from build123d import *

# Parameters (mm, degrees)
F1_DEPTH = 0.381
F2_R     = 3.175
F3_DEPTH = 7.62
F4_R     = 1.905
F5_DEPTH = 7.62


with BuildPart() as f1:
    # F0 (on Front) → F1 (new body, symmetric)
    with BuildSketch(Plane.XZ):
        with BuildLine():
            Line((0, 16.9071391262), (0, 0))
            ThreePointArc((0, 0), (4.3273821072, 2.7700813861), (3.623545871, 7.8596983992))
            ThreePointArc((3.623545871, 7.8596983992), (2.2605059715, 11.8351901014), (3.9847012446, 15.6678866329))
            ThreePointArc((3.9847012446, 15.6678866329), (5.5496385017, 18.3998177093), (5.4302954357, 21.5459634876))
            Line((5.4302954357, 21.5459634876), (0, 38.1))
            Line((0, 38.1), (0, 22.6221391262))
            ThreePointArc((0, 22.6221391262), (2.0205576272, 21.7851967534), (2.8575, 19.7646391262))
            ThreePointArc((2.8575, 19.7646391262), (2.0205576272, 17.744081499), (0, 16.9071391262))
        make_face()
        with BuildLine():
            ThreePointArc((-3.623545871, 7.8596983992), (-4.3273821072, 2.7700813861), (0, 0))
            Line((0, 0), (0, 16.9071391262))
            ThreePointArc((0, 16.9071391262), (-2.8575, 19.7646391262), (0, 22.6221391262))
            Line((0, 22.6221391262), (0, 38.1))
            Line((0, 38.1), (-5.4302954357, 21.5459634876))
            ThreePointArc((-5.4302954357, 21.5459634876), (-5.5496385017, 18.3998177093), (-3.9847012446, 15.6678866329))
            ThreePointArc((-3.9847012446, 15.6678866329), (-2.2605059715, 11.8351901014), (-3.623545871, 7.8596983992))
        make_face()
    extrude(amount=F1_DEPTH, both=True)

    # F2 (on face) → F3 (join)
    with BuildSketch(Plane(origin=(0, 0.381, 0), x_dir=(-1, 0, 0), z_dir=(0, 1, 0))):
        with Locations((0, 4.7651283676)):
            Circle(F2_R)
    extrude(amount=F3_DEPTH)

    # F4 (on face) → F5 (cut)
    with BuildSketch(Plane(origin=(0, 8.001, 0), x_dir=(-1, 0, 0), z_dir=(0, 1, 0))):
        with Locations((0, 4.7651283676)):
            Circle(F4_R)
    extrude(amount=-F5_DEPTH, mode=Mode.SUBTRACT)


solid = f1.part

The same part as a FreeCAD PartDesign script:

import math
import FreeCAD as App
import Part
import Sketcher
Q = App.Units.Quantity

doc = App.newDocument("Part")
body = doc.addObject("PartDesign::Body", "Body")

# Sketch on XZ plane
sketch1 = body.newObject("Sketcher::SketchObject", "Sketch")
sketch1.AttachmentSupport = (doc.getObject("XZ_Plane"), [""])
sketch1.MapMode = "FlatFace"
sketch1.addGeometry(Part.ArcOfCircle(Part.Circle(App.Vector(0, 4.8, 0), App.Vector(0, 0, 1), 4.8), math.radians(-90), math.radians(40)), False)
sketch1.addGeometry(Part.ArcOfCircle(Part.Circle(App.Vector(8, 11.6, 0), App.Vector(0, 0, 1), 5.7), math.radians(134), math.radians(220)), False)
sketch1.addGeometry(Part.ArcOfCircle(Part.Circle(App.Vector(0, 19.8, 0), App.Vector(0, 0, 1), 5.7), math.radians(-46), math.radians(18)), False)
sketch1.addGeometry(Part.LineSegment(App.Vector(5.4, 21.5, 0), App.Vector(0, 38.1, 0)), False)
sketch1.addGeometry(Part.LineSegment(App.Vector(0, 38.1, 0), App.Vector(-5.4, 21.5, 0)), False)
sketch1.addGeometry(Part.ArcOfCircle(Part.Circle(App.Vector(0, 19.8, 0), App.Vector(0, 0, 1), 5.7), math.radians(162), math.radians(226)), False)
sketch1.addGeometry(Part.ArcOfCircle(Part.Circle(App.Vector(-8, 11.6, 0), App.Vector(0, 0, 1), 5.7), math.radians(-40), math.radians(46)), False)
sketch1.addGeometry(Part.ArcOfCircle(Part.Circle(App.Vector(0, 4.8, 0), App.Vector(0, 0, 1), 4.8), math.radians(140), math.radians(270)), False)
sketch1.addGeometry(Part.ArcOfCircle(Part.Circle(App.Vector(0, 19.8, 0), App.Vector(0, 0, 1), 2.9), math.radians(0), math.radians(90)), False)
sketch1.addGeometry(Part.ArcOfCircle(Part.Circle(App.Vector(0, 19.8, 0), App.Vector(0, 0, 1), 2.9), math.radians(-90), math.radians(0)), False)
sketch1.addGeometry(Part.ArcOfCircle(Part.Circle(App.Vector(0, 19.8, 0), App.Vector(0, 0, 1), 2.9), math.radians(90), math.radians(270)), False)
sketch1.addConstraint(Sketcher.Constraint("Tangent", 0, 2, 1, 2))
sketch1.addConstraint(Sketcher.Constraint("Tangent", 1, 1, 2, 1))
sketch1.addConstraint(Sketcher.Constraint("Tangent", 2, 2, 3, 1))
sketch1.addConstraint(Sketcher.Constraint("Coincident", 3, 2, 4, 1))
sketch1.addConstraint(Sketcher.Constraint("Tangent", 4, 2, 5, 1))
sketch1.addConstraint(Sketcher.Constraint("Tangent", 5, 2, 6, 2))
sketch1.addConstraint(Sketcher.Constraint("Tangent", 6, 1, 7, 1))
sketch1.addConstraint(Sketcher.Constraint("Tangent", 7, 2, 0, 1))
sketch1.addConstraint(Sketcher.Constraint("Tangent", 8, 1, 9, 2))
sketch1.addConstraint(Sketcher.Constraint("Tangent", 9, 1, 10, 2))
sketch1.addConstraint(Sketcher.Constraint("Tangent", 10, 1, 8, 2))
sketch1.addConstraint(Sketcher.Constraint("Coincident", 7, 2, -1, 1))
sketch1.addConstraint(Sketcher.Constraint("Coincident", 5, 3, 2, 3))
sketch1.addConstraint(Sketcher.Constraint("Coincident", 8, 3, 2, 3))
sketch1.addConstraint(Sketcher.Constraint("Equal", 1, 2))
sketch1.addConstraint(Sketcher.Constraint("Equal", 2, 5))
sketch1.addConstraint(Sketcher.Constraint("Equal", 5, 6))
sketch1.addConstraint(Sketcher.Constraint("Equal", 0, 7))
sketch1.addConstraint(Sketcher.Constraint("Symmetric", 1, 3, 6, 3, -2))
sketch1.addConstraint(Sketcher.Constraint("PointOnObject", 3, 2, -2))
sketch1.addConstraint(Sketcher.Constraint("PointOnObject", 9, 1, -2))
sketch1.addConstraint(Sketcher.Constraint("PointOnObject", 10, 1, -2))
sketch1.addConstraint(Sketcher.Constraint("Horizontal", 10, 3, 8, 1))
sketch1.addConstraint(Sketcher.Constraint("Radius", 1, Q("0.225 in")))
sketch1.addConstraint(Sketcher.Constraint("DistanceY", -1, 1, 3, 2, Q("1.5 in")))
sketch1.addConstraint(Sketcher.Constraint("Radius", 8, Q("0.1125 in")))
sketch1.addConstraint(Sketcher.Constraint("Radius", 0, Q("4.765128 mm")))
sketch1.addConstraint(Sketcher.Constraint("DistanceY", -1, 1, 0, 2, Q("7.859698 mm")))
pad1 = body.newObject("PartDesign::Pad", "Pad")
pad1.Profile = sketch1
pad1.Length = Q("0.03 in")
pad1.Midplane = True

# Sketch on XZ plane
sketch2 = body.newObject("Sketcher::SketchObject", "Sketch001")
sketch2.AttachmentSupport = (doc.getObject("XZ_Plane"), [""])
sketch2.MapMode = "FlatFace"
sketch2.AttachmentOffset = App.Placement(App.Vector(0, 0, -0.015 * 25.4), App.Rotation())
sketch2.addGeometry(Part.Circle(App.Vector(0, 4.8, 0), App.Vector(0, 0, 1), 3.2), False)
sketch2.addConstraint(Sketcher.Constraint("PointOnObject", 0, 3, -2))
sketch2.addConstraint(Sketcher.Constraint("Diameter", 0, Q("0.25 in")))
sketch2.addConstraint(Sketcher.Constraint("DistanceY", -1, 1, 0, 3, Q("4.765128 mm")))
pad2 = body.newObject("PartDesign::Pad", "Pad001")
pad2.Profile = sketch2
pad2.Length = Q("0.3 in")
pad2.Reversed = True

# Sketch on XZ plane
sketch3 = body.newObject("Sketcher::SketchObject", "Sketch002")
sketch3.AttachmentSupport = (doc.getObject("XZ_Plane"), [""])
sketch3.MapMode = "FlatFace"
sketch3.AttachmentOffset = App.Placement(App.Vector(0, 0, -0.315 * 25.4), App.Rotation())
sketch3.addGeometry(Part.Circle(App.Vector(0, 4.8, 0), App.Vector(0, 0, 1), 1.9), False)
sketch3.addConstraint(Sketcher.Constraint("PointOnObject", 0, 3, -2))
sketch3.addConstraint(Sketcher.Constraint("Diameter", 0, Q("0.15 in")))
sketch3.addConstraint(Sketcher.Constraint("DistanceY", -1, 1, 0, 3, Q("4.765128 mm")))
pocket1 = body.newObject("PartDesign::Pocket", "Pocket")
pocket1.Profile = sketch3
pocket1.Length = Q("0.3 in")
pocket1.Reversed = True

doc.recompute()
